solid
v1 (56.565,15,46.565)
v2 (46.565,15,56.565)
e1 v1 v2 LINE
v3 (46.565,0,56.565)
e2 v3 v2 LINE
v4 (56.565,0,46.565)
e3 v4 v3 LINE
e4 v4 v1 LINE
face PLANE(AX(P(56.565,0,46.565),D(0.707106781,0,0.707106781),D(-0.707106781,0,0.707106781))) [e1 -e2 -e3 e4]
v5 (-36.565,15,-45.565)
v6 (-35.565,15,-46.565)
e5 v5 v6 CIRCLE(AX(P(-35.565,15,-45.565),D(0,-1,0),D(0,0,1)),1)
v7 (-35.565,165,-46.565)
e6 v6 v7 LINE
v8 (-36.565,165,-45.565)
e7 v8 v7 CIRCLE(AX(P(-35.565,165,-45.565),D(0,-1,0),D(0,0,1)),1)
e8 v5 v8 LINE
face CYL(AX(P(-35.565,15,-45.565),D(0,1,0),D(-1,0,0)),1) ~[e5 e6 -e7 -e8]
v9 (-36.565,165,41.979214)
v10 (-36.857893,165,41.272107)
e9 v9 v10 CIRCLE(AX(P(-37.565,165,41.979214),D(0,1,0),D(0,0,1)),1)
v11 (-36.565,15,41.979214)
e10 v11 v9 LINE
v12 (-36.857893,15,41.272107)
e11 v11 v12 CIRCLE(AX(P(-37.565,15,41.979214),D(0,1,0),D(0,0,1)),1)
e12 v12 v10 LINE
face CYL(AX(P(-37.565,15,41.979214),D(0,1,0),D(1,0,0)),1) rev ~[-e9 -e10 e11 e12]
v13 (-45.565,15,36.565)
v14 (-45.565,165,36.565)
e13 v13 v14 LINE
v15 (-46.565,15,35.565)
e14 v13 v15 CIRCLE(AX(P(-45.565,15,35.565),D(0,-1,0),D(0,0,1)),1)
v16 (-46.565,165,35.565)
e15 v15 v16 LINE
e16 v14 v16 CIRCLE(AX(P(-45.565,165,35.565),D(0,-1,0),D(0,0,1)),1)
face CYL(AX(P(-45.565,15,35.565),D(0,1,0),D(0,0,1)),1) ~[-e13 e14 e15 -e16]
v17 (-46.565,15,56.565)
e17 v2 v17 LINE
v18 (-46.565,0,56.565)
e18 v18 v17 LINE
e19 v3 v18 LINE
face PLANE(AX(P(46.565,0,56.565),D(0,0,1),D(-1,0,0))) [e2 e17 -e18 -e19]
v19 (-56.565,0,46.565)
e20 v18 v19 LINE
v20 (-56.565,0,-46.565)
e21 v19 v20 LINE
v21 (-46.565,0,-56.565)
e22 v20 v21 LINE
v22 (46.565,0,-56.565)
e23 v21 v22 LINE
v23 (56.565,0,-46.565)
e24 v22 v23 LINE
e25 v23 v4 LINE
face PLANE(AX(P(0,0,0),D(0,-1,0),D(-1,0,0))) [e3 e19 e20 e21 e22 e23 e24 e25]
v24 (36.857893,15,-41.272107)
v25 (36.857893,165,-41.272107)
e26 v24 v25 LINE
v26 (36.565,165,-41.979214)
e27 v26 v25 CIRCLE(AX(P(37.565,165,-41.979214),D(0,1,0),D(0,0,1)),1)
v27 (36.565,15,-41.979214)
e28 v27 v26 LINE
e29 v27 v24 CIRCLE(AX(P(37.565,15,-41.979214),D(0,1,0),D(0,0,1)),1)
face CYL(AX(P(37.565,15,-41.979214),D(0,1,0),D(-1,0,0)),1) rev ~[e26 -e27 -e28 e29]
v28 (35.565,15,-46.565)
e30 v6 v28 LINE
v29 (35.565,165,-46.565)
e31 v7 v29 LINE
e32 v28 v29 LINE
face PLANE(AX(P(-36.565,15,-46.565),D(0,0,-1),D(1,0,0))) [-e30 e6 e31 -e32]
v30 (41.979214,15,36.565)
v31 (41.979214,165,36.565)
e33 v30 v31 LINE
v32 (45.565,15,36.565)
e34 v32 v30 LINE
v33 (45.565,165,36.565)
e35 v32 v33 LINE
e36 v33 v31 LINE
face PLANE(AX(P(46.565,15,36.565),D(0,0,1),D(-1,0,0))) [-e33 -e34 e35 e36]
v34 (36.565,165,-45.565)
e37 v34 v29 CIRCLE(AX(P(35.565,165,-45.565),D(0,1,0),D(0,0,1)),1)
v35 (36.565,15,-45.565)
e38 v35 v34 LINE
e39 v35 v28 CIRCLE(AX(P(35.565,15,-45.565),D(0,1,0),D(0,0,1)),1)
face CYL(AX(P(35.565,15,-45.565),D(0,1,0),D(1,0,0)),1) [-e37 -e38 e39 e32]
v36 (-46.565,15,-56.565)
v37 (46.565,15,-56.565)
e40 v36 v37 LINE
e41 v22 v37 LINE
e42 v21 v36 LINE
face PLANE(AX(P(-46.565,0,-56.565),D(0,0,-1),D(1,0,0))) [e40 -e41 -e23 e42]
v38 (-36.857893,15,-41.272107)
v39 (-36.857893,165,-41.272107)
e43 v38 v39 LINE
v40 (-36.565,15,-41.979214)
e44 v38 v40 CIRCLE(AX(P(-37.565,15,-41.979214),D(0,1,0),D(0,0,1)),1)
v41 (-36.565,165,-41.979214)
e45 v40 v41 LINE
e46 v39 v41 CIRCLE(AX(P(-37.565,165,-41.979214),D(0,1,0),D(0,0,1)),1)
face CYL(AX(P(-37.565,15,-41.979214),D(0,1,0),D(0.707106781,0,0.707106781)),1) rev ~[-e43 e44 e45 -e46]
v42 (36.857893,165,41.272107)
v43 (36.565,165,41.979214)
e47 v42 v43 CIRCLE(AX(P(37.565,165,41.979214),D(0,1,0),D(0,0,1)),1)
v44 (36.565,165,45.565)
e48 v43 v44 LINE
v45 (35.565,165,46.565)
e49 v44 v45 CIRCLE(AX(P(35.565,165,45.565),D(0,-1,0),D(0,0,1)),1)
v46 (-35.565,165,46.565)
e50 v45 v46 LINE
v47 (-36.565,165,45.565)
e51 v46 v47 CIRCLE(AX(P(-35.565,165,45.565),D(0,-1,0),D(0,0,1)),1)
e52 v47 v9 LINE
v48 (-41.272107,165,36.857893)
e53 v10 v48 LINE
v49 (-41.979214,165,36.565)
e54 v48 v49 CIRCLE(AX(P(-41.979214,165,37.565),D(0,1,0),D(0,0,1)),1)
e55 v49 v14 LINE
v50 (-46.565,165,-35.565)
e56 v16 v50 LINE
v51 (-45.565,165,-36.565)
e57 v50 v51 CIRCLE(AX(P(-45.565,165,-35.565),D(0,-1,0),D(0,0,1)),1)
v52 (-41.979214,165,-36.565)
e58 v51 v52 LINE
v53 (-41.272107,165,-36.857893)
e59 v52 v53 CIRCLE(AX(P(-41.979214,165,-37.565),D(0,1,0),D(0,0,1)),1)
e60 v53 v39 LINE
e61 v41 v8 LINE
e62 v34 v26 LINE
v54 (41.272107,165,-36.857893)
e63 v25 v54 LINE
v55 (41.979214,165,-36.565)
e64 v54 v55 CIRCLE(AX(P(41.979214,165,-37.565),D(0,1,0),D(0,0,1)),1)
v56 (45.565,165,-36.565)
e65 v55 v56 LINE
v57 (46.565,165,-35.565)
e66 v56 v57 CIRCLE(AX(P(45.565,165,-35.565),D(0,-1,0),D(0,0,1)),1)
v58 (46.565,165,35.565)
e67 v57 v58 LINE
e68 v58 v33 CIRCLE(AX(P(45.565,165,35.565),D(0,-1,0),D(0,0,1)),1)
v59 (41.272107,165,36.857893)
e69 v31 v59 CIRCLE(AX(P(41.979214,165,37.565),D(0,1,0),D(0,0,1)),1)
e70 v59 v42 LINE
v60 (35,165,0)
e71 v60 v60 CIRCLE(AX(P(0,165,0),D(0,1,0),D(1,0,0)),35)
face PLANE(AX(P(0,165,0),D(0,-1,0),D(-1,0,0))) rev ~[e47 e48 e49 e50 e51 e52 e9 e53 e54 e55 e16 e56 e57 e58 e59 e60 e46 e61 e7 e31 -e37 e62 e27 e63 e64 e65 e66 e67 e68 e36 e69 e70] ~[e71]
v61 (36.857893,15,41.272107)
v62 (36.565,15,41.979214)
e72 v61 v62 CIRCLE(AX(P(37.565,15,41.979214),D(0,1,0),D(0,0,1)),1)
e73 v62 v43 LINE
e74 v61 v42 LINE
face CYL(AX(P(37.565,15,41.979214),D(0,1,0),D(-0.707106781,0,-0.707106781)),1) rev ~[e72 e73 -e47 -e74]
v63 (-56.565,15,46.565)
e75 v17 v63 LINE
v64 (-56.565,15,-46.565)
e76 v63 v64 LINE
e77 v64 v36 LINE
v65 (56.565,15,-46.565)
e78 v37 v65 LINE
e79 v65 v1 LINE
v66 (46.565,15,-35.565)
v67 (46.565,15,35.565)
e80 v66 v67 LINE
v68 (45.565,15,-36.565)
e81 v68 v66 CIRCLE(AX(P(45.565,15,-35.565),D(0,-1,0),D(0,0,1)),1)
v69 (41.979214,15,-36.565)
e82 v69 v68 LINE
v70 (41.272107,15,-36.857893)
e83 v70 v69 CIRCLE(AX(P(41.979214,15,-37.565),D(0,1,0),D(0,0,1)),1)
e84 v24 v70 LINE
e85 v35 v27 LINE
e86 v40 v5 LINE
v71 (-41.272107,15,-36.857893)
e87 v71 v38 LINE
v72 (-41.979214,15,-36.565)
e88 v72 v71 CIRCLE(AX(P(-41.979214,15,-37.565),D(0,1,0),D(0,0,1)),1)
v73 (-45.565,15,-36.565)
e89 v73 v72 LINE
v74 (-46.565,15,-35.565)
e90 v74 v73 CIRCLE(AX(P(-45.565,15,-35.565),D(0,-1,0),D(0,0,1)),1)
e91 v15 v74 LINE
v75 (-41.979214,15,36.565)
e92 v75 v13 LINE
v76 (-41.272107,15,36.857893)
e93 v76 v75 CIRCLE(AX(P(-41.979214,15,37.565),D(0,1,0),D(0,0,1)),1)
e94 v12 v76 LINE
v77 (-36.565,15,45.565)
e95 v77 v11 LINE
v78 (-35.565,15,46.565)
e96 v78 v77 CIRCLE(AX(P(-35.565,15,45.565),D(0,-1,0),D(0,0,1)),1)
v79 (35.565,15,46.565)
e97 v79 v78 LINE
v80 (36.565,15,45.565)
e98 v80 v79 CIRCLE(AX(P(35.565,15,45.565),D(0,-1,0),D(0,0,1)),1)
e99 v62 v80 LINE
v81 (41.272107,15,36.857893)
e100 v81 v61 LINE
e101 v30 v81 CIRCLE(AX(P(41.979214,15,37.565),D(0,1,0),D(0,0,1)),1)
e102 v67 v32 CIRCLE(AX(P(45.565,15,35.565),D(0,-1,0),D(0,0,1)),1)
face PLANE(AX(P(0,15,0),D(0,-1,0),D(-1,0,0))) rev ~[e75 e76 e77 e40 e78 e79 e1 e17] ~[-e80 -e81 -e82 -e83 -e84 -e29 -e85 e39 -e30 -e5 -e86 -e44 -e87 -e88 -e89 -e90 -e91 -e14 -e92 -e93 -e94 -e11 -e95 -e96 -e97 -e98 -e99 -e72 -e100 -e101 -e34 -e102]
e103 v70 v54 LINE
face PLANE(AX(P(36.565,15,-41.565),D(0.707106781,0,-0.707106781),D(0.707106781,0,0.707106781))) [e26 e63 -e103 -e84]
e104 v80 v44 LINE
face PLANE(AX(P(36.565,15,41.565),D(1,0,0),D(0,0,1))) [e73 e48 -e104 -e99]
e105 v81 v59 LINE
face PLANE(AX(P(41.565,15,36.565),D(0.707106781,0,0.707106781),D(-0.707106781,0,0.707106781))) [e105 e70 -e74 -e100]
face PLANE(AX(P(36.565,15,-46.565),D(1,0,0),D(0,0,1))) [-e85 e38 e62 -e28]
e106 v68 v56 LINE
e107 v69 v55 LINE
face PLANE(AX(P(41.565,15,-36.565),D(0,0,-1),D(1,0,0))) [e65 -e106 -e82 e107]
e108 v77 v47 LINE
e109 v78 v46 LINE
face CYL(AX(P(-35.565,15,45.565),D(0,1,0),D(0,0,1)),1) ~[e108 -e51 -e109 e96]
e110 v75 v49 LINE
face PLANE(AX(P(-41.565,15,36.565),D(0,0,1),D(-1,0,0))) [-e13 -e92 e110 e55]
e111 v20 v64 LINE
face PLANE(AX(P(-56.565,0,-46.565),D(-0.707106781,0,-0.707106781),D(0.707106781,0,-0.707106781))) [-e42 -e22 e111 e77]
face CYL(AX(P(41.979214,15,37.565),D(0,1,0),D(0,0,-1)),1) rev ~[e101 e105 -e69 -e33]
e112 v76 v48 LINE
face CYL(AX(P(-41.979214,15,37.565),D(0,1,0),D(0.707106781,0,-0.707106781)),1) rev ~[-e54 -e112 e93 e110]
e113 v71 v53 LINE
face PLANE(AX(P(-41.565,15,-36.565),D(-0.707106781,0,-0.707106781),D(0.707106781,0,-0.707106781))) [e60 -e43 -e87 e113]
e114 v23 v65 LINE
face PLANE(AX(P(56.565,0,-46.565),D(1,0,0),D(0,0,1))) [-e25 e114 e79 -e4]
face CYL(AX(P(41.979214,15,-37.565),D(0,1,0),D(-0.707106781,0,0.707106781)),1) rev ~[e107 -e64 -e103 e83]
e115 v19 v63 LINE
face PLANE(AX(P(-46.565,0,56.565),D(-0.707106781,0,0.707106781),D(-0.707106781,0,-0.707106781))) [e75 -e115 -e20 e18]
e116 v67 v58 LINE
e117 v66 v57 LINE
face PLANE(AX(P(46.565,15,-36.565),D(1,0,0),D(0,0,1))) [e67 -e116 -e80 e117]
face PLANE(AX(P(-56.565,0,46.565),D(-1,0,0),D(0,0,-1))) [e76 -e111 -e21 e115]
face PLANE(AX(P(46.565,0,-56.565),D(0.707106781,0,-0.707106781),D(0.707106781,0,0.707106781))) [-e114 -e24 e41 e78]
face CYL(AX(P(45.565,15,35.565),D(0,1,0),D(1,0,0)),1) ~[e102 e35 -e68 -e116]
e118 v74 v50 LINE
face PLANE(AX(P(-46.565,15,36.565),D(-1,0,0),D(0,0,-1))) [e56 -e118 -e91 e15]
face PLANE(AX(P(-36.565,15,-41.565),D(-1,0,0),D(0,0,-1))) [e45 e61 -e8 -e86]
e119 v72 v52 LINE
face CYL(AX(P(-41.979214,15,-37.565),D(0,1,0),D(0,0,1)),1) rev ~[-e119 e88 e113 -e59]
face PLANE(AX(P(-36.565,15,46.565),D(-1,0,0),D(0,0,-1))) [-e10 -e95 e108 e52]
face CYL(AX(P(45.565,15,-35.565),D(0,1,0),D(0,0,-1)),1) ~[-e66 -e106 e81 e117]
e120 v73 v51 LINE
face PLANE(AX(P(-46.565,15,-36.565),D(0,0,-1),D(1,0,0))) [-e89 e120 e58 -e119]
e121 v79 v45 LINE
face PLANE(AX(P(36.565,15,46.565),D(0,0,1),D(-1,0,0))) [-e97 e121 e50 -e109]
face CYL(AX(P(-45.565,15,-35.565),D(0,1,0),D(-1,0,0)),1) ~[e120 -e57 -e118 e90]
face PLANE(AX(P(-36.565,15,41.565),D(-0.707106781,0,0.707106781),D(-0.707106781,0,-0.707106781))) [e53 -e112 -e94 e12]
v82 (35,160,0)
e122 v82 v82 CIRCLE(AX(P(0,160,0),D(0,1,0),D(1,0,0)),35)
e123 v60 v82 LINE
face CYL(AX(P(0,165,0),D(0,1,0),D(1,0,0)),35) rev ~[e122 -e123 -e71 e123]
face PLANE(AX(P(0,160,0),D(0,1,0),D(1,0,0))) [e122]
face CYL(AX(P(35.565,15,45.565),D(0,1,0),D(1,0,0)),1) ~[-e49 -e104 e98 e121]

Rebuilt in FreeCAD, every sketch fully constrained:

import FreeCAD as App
import Part
import Sketcher

V = App.Vector


def edges_at(feature, points):
    """Names of the edges that pass closest to the given points."""
    edges = feature.Shape.Edges
    near = lambda p: min(range(len(edges)), key=lambda i: edges[i].distToShape(Part.Vertex(*p))[0])
    return sorted({f"Edge{near(p) + 1}" for p in points})

doc = App.newDocument("Part")
body = doc.addObject("PartDesign::Body", "Body")

# Sketch on XZ plane
sketch1 = body.newObject("Sketcher::SketchObject", "Sketch")
sketch1.AttachmentSupport = (doc.getObject("XZ_Plane"), [""])
sketch1.MapMode = "FlatFace"
sketch1.addGeometry([
    Part.LineSegment(V(-46.565, -56.565, 0), V(-56.565, -46.565, 0)),  # 0
    Part.LineSegment(V(-56.565, -46.565, 0), V(-56.565, 46.565, 0)),  # 1
    Part.LineSegment(V(-56.565, 46.565, 0), V(-46.565, 56.565, 0)),  # 2
    Part.LineSegment(V(-46.565, 56.565, 0), V(46.565, 56.565, 0)),  # 3
    Part.LineSegment(V(46.565, 56.565, 0), V(56.565, 46.565, 0)),  # 4
    Part.LineSegment(V(56.565, 46.565, 0), V(56.565, -46.565, 0)),  # 5
    Part.LineSegment(V(56.565, -46.565, 0), V(46.565, -56.565, 0)),  # 6
    Part.LineSegment(V(46.565, -56.565, 0), V(-46.565, -56.565, 0)),  # 7
], False)
sketch1.addConstraint([
    Sketcher.Constraint("Coincident", 0, 2, 1, 1),
    Sketcher.Constraint("Coincident", 1, 2, 2, 1),
    Sketcher.Constraint("Coincident", 2, 2, 3, 1),
    Sketcher.Constraint("Coincident", 3, 2, 4, 1),
    Sketcher.Constraint("Coincident", 4, 2, 5, 1),
    Sketcher.Constraint("Coincident", 5, 2, 6, 1),
    Sketcher.Constraint("Coincident", 6, 2, 7, 1),
    Sketcher.Constraint("Coincident", 7, 2, 0, 1),
    Sketcher.Constraint("Vertical", 1),
    Sketcher.Constraint("Horizontal", 3),
    Sketcher.Constraint("Vertical", 5),
    Sketcher.Constraint("Horizontal", 7),
    Sketcher.Constraint("Symmetric", 0, 2, 4, 2, -1, 1),
    Sketcher.Constraint("Symmetric", 2, 2, 6, 2, -1, 1),
    Sketcher.Constraint("Perpendicular", 0, 2),
    Sketcher.Constraint("Perpendicular", 2, 4),
    Sketcher.Constraint("Perpendicular", 4, 6),
    Sketcher.Constraint("Horizontal", 1, 2, 4, 2),
    Sketcher.Constraint("Vertical", 3, 2, 6, 2),
    Sketcher.Constraint("Equal", 7, 1),
    Sketcher.Constraint("DistanceX", 1, 2, 2, 2, 10.0),
    Sketcher.Constraint("DistanceX", 3, 1, 3, 2, 93.13),
])
pad1 = body.newObject("PartDesign::Pad", "Pad")
pad1.Profile = sketch1
pad1.Length = 15
pad1.Reversed = True

# Sketch on XZ plane
sketch2 = body.newObject("Sketcher::SketchObject", "Sketch001")
sketch2.AttachmentSupport = (doc.getObject("XZ_Plane"), [""])
sketch2.MapMode = "FlatFace"
sketch2.AttachmentOffset = App.Placement(V(0, 0, -15), App.Rotation())
sketch2.addGeometry([
    Part.LineSegment(V(36.565, -41.565, 0), V(36.565, -46.565, 0)),  # 0
    Part.LineSegment(V(36.565, -46.565, 0), V(-36.565, -46.565, 0)),  # 1
    Part.LineSegment(V(-36.565, -46.565, 0), V(-36.565, -41.565, 0)),  # 2
    Part.LineSegment(V(-36.565, -41.565, 0), V(-41.565, -36.565, 0)),  # 3
    Part.LineSegment(V(-41.565, -36.565, 0), V(-46.565, -36.565, 0)),  # 4
    Part.LineSegment(V(-46.565, -36.565, 0), V(-46.565, 36.565, 0)),  # 5
    Part.LineSegment(V(-46.565, 36.565, 0), V(-41.565, 36.565, 0)),  # 6
    Part.LineSegment(V(-41.565, 36.565, 0), V(-36.565, 41.565, 0)),  # 7
    Part.LineSegment(V(-36.565, 41.565, 0), V(-36.565, 46.565, 0)),  # 8
    Part.LineSegment(V(-36.565, 46.565, 0), V(36.565, 46.565, 0)),  # 9
    Part.LineSegment(V(36.565, 46.565, 0), V(36.565, 41.565, 0)),  # 10
    Part.LineSegment(V(36.565, 41.565, 0), V(41.565, 36.565, 0)),  # 11
    Part.LineSegment(V(41.565, 36.565, 0), V(46.565, 36.565, 0)),  # 12
    Part.LineSegment(V(46.565, 36.565, 0), V(46.565, -36.565, 0)),  # 13
    Part.LineSegment(V(46.565, -36.565, 0), V(41.565, -36.565, 0)),  # 14
    Part.LineSegment(V(41.565, -36.565, 0), V(36.565, -41.565, 0)),  # 15
], False)
sketch2.addConstraint([
    Sketcher.Constraint("Coincident", 0, 2, 1, 1),
    Sketcher.Constraint("Coincident", 1, 2, 2, 1),
    Sketcher.Constraint("Coincident", 2, 2, 3, 1),
    Sketcher.Constraint("Coincident", 3, 2, 4, 1),
    Sketcher.Constraint("Coincident", 4, 2, 5, 1),
    Sketcher.Constraint("Coincident", 5, 2, 6, 1),
    Sketcher.Constraint("Coincident", 6, 2, 7, 1),
    Sketcher.Constraint("Coincident", 7, 2, 8, 1),
    Sketcher.Constraint("Coincident", 8, 2, 9, 1),
    Sketcher.Constraint("Coincident", 9, 2, 10, 1),
    Sketcher.Constraint("Coincident", 10, 2, 11, 1),
    Sketcher.Constraint("Coincident", 11, 2, 12, 1),
    Sketcher.Constraint("Coincident", 12, 2, 13, 1),
    Sketcher.Constraint("Coincident", 13, 2, 14, 1),
    Sketcher.Constraint("Coincident", 14, 2, 15, 1),
    Sketcher.Constraint("Coincident", 15, 2, 0, 1),
    Sketcher.Constraint("Vertical", 0),
    Sketcher.Constraint("Horizontal", 1),
    Sketcher.Constraint("Vertical", 2),
    Sketcher.Constraint("Horizontal", 4),
    Sketcher.Constraint("Vertical", 5),
    Sketcher.Constraint("Horizontal", 6),
    Sketcher.Constraint("Vertical", 8),
    Sketcher.Constraint("Horizontal", 9),
    Sketcher.Constraint("Vertical", 10),
    Sketcher.Constraint("Horizontal", 12),
    Sketcher.Constraint("Vertical", 13),
    Sketcher.Constraint("Horizontal", 14),
    Sketcher.Constraint("Symmetric", 0, 2, 8, 2, -1, 1),
    Sketcher.Constraint("Symmetric", 2, 2, 10, 2, -1, 1),
    Sketcher.Constraint("Symmetric", 3, 2, 11, 2, -1, 1),
    Sketcher.Constraint("Symmetric", 5, 2, 13, 2, -1, 1),
    Sketcher.Constraint("Symmetric", 7, 2, 10, 2, -2),
    Sketcher.Constraint("Symmetric", 6, 2, 11, 2, -2),
    Sketcher.Constraint("Perpendicular", 3, 7),
    Sketcher.Constraint("Perpendicular", 11, 15),
    Sketcher.Constraint("Horizontal", 2, 2, 15, 2),
    Sketcher.Constraint("Equal", 14, 0),
    Sketcher.Constraint("Equal", 9, 5),
    Sketcher.Constraint("DistanceX", 4, 2, 4, 1, 5.0),
    Sketcher.Constraint("DistanceX", 3, 2, 2, 2, 5.0),
    Sketcher.Constraint("DistanceX", 1, 2, 1, 1, 73.13),
])
pad2 = body.newObject("PartDesign::Pad", "Pad001")
pad2.Profile = sketch2
pad2.Length = 150
pad2.Reversed = True
doc.recompute()

fillet = body.newObject("PartDesign::Fillet", "Fillet")
fillet.Base = (pad2, edges_at(pad2, [
    (36.565, 90, -46.565),
    (-36.565, 90, -46.565),
    (-36.565, 90, -41.565),
    (-41.565, 90, -36.565),
    (-46.565, 90, -36.565),
    (-46.565, 90, 36.565),
    (-41.565, 90, 36.565),
    (-36.565, 90, 41.565),
    (-36.565, 90, 46.565),
    (36.565, 90, 46.565),
    (36.565, 90, 41.565),
    (41.565, 90, 36.565),
    (46.565, 90, 36.565),
    (46.565, 90, -36.565),
    (41.565, 90, -36.565),
    (36.565, 90, -41.565),
]))
fillet.Radius = 1

# Sketch on XZ plane
sketch3 = body.newObject("Sketcher::SketchObject", "Sketch002")
sketch3.AttachmentSupport = (doc.getObject("XZ_Plane"), [""])
sketch3.MapMode = "FlatFace"
sketch3.AttachmentOffset = App.Placement(V(0, 0, -165), App.Rotation())
sketch3.addGeometry(Part.Circle(V(0, 0, 0), V(0, 0, 1), 35), False)
sketch3.addConstraint([
    Sketcher.Constraint("Coincident", 0, 3, -1, 1),
    Sketcher.Constraint("Diameter", 0, 70.0),
])
pocket1 = body.newObject("PartDesign::Pocket", "Pocket")
pocket1.Profile = sketch3
pocket1.Length = 5
pocket1.Reversed = True

doc.recompute()
